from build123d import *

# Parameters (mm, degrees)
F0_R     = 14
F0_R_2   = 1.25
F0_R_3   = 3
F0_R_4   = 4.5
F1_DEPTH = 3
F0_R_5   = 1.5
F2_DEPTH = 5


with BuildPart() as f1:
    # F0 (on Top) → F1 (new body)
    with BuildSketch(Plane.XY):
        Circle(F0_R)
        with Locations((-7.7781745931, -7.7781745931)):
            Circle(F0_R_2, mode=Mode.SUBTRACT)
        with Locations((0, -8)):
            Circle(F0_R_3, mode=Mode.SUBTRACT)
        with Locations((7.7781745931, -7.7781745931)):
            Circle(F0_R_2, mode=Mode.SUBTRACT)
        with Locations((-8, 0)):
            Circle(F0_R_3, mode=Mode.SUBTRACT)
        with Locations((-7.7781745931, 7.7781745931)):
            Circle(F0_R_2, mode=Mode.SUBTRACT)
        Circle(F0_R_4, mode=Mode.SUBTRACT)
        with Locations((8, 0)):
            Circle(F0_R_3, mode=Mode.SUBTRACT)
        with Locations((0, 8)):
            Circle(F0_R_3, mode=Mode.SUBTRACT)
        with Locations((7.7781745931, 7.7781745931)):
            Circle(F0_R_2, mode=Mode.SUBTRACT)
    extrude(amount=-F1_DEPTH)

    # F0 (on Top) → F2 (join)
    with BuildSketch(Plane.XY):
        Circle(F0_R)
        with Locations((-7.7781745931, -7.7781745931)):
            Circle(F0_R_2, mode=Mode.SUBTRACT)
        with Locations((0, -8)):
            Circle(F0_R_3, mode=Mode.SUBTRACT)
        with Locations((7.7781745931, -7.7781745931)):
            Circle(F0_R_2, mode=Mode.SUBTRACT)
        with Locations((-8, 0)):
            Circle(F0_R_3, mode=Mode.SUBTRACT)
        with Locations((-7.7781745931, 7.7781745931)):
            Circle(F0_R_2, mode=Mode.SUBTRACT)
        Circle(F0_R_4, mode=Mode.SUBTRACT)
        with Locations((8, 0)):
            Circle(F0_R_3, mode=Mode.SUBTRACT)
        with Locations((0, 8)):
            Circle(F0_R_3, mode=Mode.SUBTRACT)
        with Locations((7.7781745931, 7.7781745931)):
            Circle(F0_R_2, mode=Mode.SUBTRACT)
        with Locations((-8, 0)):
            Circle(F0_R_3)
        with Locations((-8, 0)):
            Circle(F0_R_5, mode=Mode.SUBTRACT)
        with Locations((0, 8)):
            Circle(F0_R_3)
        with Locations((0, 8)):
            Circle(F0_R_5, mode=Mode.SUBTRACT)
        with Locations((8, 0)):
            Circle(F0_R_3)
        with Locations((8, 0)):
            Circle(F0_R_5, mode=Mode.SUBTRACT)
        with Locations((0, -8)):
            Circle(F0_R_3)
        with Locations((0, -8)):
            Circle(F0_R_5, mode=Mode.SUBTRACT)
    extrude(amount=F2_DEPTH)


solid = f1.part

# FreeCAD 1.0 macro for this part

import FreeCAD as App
import Part
import Sketcher
from FreeCAD import Vector
Q = App.Units.Quantity

doc = App.newDocument("Part")
params = doc.addObject("Spreadsheet::Sheet", "Params")
for row, (alias, value) in enumerate([
    ("sketch1_diameter", "28 mm"),
    ("sketch1_diameter2", "6 mm"),
    ("sketch1_diameter3", "9 mm"),
    ("sketch1_diameter4", "2.5 mm"),
    ("pad1_length", "3 mm"),
    ("sketch2_diameter", "28 mm"),
    ("sketch2_diameter2", "3 mm"),
    ("sketch2_diameter3", "9 mm"),
    ("sketch2_diameter4", "2.5 mm"),
    ("pad2_length", "5 mm"),
], start=1):
    params.set(f"A{row}", alias)
    params.set(f"B{row}", "=" + value)
    params.setAlias(f"B{row}", alias)

body = doc.addObject("PartDesign::Body", "Body")

sketch1 = body.newObject("Sketcher::SketchObject", "Sketch")
sketch1.AttachmentSupport = (doc.getObject("XY_Plane"), [""])
sketch1.MapMode = "FlatFace"
sketch1.addGeometry(Part.Circle(Vector(0, 0, 0), Vector(0, 0, 1), 14), False)
sketch1.addGeometry(Part.Circle(Vector(-7.8, -7.8, 0), Vector(0, 0, 1), 1.2), False)
sketch1.addGeometry(Part.Circle(Vector(0, -8, 0), Vector(0, 0, 1), 3), False)
sketch1.addGeometry(Part.Circle(Vector(7.8, -7.8, 0), Vector(0, 0, 1), 1.2), False)
sketch1.addGeometry(Part.Circle(Vector(-8, 0, 0), Vector(0, 0, 1), 3), False)
sketch1.addGeometry(Part.Circle(Vector(-7.8, 7.8, 0), Vector(0, 0, 1), 1.2), False)
sketch1.addGeometry(Part.Circle(Vector(0, 0, 0), Vector(0, 0, 1), 4.5), False)
sketch1.addGeometry(Part.Circle(Vector(8, 0, 0), Vector(0, 0, 1), 3), False)
sketch1.addGeometry(Part.Circle(Vector(0, 8, 0), Vector(0, 0, 1), 3), False)
sketch1.addGeometry(Part.Circle(Vector(7.8, 7.8, 0), Vector(0, 0, 1), 1.2), False)
sketch1.addConstraint(Sketcher.Constraint("Coincident", 0, 3, -1, 1))
sketch1.addConstraint(Sketcher.Constraint("Coincident", 6, 3, -1, 1))
sketch1.addConstraint(Sketcher.Constraint("Equal", 1, 3))
sketch1.addConstraint(Sketcher.Constraint("Equal", 2, 4))
sketch1.addConstraint(Sketcher.Constraint("Equal", 3, 5))
sketch1.addConstraint(Sketcher.Constraint("Equal", 4, 7))
sketch1.addConstraint(Sketcher.Constraint("Equal", 7, 8))
sketch1.addConstraint(Sketcher.Constraint("Equal", 5, 9))
sketch1.addConstraint(Sketcher.Constraint("Symmetric", 3, 3, 5, 3, -1, 1))
sketch1.addConstraint(Sketcher.Constraint("Symmetric", 4, 3, 7, 3, -1, 1))
sketch1.addConstraint(Sketcher.Constraint("Symmetric", 2, 3, 8, 3, -1, 1))
sketch1.addConstraint(Sketcher.Constraint("Symmetric", 1, 3, 9, 3, -1, 1))
sketch1.addConstraint(Sketcher.Constraint("Symmetric", 1, 3, 3, 3, -2))
sketch1.addConstraint(Sketcher.Constraint("PointOnObject", 2, 3, -2))
sketch1.addConstraint(Sketcher.Constraint("PointOnObject", 4, 3, -1))
sketch1.addConstraint(Sketcher.Constraint("Diameter", 0, Q("28 mm")))
sketch1.addConstraint(Sketcher.Constraint("Diameter", 2, Q("6 mm")))
sketch1.addConstraint(Sketcher.Constraint("Diameter", 6, Q("9 mm")))
sketch1.addConstraint(Sketcher.Constraint("Diameter", 1, Q("2.5 mm")))
sketch1.addConstraint(Sketcher.Constraint("DistanceY", 2, 3, -1, 1, Q("8 mm")))
sketch1.addConstraint(Sketcher.Constraint("DistanceX", 4, 3, -1, 1, Q("8 mm")))
sketch1.addConstraint(Sketcher.Constraint("DistanceX", 1, 3, 3, 3, Q("15.556349 mm")))
sketch1.addConstraint(Sketcher.Constraint("DistanceY", 1, 3, 5, 3, Q("15.556349 mm")))
sketch1.setExpression("Constraints[15]", "Params.sketch1_diameter")
sketch1.setExpression("Constraints[16]", "Params.sketch1_diameter2")
sketch1.setExpression("Constraints[17]", "Params.sketch1_diameter3")
sketch1.setExpression("Constraints[18]", "Params.sketch1_diameter4")
pad1 = body.newObject("PartDesign::Pad", "Pad")
pad1.Profile = sketch1
pad1.setExpression("Length", "Params.pad1_length")
pad1.Reversed = True

sketch2 = body.newObject("Sketcher::SketchObject", "Sketch001")
sketch2.AttachmentSupport = (doc.getObject("XY_Plane"), [""])
sketch2.MapMode = "FlatFace"
sketch2.addGeometry(Part.Circle(Vector(0, 0, 0), Vector(0, 0, 1), 14), False)
sketch2.addGeometry(Part.Circle(Vector(-7.8, -7.8, 0), Vector(0, 0, 1), 1.2), False)
sketch2.addGeometry(Part.Circle(Vector(0, -8, 0), Vector(0, 0, 1), 1.5), False)
sketch2.addGeometry(Part.Circle(Vector(7.8, -7.8, 0), Vector(0, 0, 1), 1.2), False)
sketch2.addGeometry(Part.Circle(Vector(-8, 0, 0), Vector(0, 0, 1), 1.5), False)
sketch2.addGeometry(Part.Circle(Vector(-7.8, 7.8, 0), Vector(0, 0, 1), 1.2), False)
sketch2.addGeometry(Part.Circle(Vector(0, 0, 0), Vector(0, 0, 1), 4.5), False)
sketch2.addGeometry(Part.Circle(Vector(8, 0, 0), Vector(0, 0, 1), 1.5), False)
sketch2.addGeometry(Part.Circle(Vector(0, 8, 0), Vector(0, 0, 1), 1.5), False)
sketch2.addGeometry(Part.Circle(Vector(7.8, 7.8, 0), Vector(0, 0, 1), 1.2), False)
sketch2.addConstraint(Sketcher.Constraint("Coincident", 0, 3, -1, 1))
sketch2.addConstraint(Sketcher.Constraint("Coincident", 6, 3, -1, 1))
sketch2.addConstraint(Sketcher.Constraint("Equal", 1, 3))
sketch2.addConstraint(Sketcher.Constraint("Equal", 2, 4))
sketch2.addConstraint(Sketcher.Constraint("Equal", 3, 5))
sketch2.addConstraint(Sketcher.Constraint("Equal", 4, 7))
sketch2.addConstraint(Sketcher.Constraint("Equal", 7, 8))
sketch2.addConstraint(Sketcher.Constraint("Equal", 5, 9))
sketch2.addConstraint(Sketcher.Constraint("Symmetric", 3, 3, 5, 3, -1, 1))
sketch2.addConstraint(Sketcher.Constraint("Symmetric", 4, 3, 7, 3, -1, 1))
sketch2.addConstraint(Sketcher.Constraint("Symmetric", 2, 3, 8, 3, -1, 1))
sketch2.addConstraint(Sketcher.Constraint("Symmetric", 1, 3, 9, 3, -1, 1))
sketch2.addConstraint(Sketcher.Constraint("Symmetric", 1, 3, 3, 3, -2))
sketch2.addConstraint(Sketcher.Constraint("PointOnObject", 2, 3, -2))
sketch2.addConstraint(Sketcher.Constraint("PointOnObject", 4, 3, -1))
sketch2.addConstraint(Sketcher.Constraint("Diameter", 0, Q("28 mm")))
sketch2.addConstraint(Sketcher.Constraint("Diameter", 2, Q("3 mm")))
sketch2.addConstraint(Sketcher.Constraint("Diameter", 6, Q("9 mm")))
sketch2.addConstraint(Sketcher.Constraint("Diameter", 1, Q("2.5 mm")))
sketch2.addConstraint(Sketcher.Constraint("DistanceY", 2, 3, -1, 1, Q("8 mm")))
sketch2.addConstraint(Sketcher.Constraint("DistanceX", 4, 3, -1, 1, Q("8 mm")))
sketch2.addConstraint(Sketcher.Constraint("DistanceX", 1, 3, 3, 3, Q("15.556349 mm")))
sketch2.addConstraint(Sketcher.Constraint("DistanceY", 1, 3, 5, 3, Q("15.556349 mm")))
sketch2.setExpression("Constraints[15]", "Params.sketch2_diameter")
sketch2.setExpression("Constraints[16]", "Params.sketch2_diameter2")
sketch2.setExpression("Constraints[17]", "Params.sketch2_diameter3")
sketch2.setExpression("Constraints[18]", "Params.sketch2_diameter4")
pad2 = body.newObject("PartDesign::Pad", "Pad001")
pad2.Profile = sketch2
pad2.setExpression("Length", "Params.pad2_length")

doc.recompute()
